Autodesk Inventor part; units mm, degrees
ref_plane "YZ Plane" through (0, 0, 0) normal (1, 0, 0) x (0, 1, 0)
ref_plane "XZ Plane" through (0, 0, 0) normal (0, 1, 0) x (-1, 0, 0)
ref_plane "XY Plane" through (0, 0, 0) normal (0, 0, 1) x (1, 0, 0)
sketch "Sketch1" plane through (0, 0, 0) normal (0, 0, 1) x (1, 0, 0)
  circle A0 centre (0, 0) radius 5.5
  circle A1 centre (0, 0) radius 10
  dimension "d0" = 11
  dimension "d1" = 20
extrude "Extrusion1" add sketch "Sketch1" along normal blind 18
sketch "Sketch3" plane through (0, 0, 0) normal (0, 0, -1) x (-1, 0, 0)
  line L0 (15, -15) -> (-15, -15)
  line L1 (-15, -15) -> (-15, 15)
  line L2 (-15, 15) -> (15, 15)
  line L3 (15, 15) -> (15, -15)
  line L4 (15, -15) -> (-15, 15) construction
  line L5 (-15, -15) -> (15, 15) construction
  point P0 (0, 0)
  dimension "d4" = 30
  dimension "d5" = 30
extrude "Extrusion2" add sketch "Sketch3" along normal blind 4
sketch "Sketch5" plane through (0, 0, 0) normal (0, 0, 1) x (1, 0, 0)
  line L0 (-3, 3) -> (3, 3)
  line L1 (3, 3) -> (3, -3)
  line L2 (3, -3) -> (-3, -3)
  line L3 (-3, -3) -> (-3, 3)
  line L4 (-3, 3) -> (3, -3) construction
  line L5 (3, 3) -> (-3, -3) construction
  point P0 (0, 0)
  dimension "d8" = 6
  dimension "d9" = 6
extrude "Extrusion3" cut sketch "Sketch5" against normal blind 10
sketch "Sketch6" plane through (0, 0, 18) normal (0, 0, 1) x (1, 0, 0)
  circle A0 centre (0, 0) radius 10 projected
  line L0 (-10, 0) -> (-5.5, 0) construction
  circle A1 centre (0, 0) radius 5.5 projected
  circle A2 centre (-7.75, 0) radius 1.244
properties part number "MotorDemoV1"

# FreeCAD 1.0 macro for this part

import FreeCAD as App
import Part
import Sketcher

V = App.Vector
Q = App.Units.Quantity


def add_polygon(sketch, points):
    """Adds a closed chain of lines whose ends are joined by coincident constraints."""
    first, n = sketch.GeometryCount, len(points)
    for a, b in zip(points, points[1:] + points[:1]):
        sketch.addGeometry(Part.LineSegment(App.Vector(*a, 0), App.Vector(*b, 0)), False)
    for i in range(n):
        sketch.addConstraint(Sketcher.Constraint("Coincident", first + i, 2, first + (i + 1) % n, 1))

doc = App.newDocument("Part")
params = doc.addObject("Spreadsheet::Sheet", "Params")
for row, (alias, value) in enumerate([
    ("sketch1_diameter", "20 mm"),
    ("sketch1_diameter2", "11 mm"),
    ("pad1_length", "18 mm"),
    ("sketch2_width", "30 mm"),
    ("pad2_length", "4 mm"),
    ("sketch3_width", "6 mm"),
    ("pocket1_length", "10 mm"),
], start=1):
    params.set(f"A{row}", alias)
    params.set(f"B{row}", "=" + value)
    params.setAlias(f"B{row}", alias)

body = doc.addObject("PartDesign::Body", "Body")

# Sketch on XY plane
sketch1 = body.newObject("Sketcher::SketchObject", "Sketch")
sketch1.AttachmentSupport = (doc.getObject("XY_Plane"), [""])
sketch1.MapMode = "FlatFace"
sketch1.addGeometry([
    Part.Circle(V(0, 0, 0), V(0, 0, 1), 10),
    Part.Circle(V(0, 0, 0), V(0, 0, 1), 6),
], False)
sketch1.addConstraint([
    Sketcher.Constraint("Coincident", 0, 3, -1, 1),
    Sketcher.Constraint("Coincident", 1, 3, -1, 1),
    Sketcher.Constraint("Diameter", 0, Q("20 mm")),
    Sketcher.Constraint("Diameter", 1, Q("11 mm")),
])
sketch1.setExpression("Constraints[2]", "Params.sketch1_diameter")
sketch1.setExpression("Constraints[3]", "Params.sketch1_diameter2")
pad1 = body.newObject("PartDesign::Pad", "Pad")
pad1.Profile = sketch1
pad1.setExpression("Length", "Params.pad1_length")

# Sketch on XY plane
sketch2 = body.newObject("Sketcher::SketchObject", "Sketch001")
sketch2.AttachmentSupport = (doc.getObject("XY_Plane"), [""])
sketch2.MapMode = "FlatFace"
add_polygon(sketch2, [(15, -15), (-15, -15), (-15, 15), (15, 15)])  # lines 0-3
sketch2.addConstraint([
    Sketcher.Constraint("Horizontal", 0),
    Sketcher.Constraint("Vertical", 1),
    Sketcher.Constraint("Horizontal", 2),
    Sketcher.Constraint("Vertical", 3),
    Sketcher.Constraint("Symmetric", 0, 2, 2, 2, -1, 1),
    Sketcher.Constraint("Equal", 2, 1),
    Sketcher.Constraint("DistanceX", 0, 2, 0, 1, Q("30 mm")),
])
sketch2.setExpression("Constraints[10]", "Params.sketch2_width")
pad2 = body.newObject("PartDesign::Pad", "Pad001")
pad2.Profile = sketch2
pad2.setExpression("Length", "Params.pad2_length")
pad2.Reversed = True

# Sketch on XY plane
sketch3 = body.newObject("Sketcher::SketchObject", "Sketch002")
sketch3.AttachmentSupport = (doc.getObject("XY_Plane"), [""])
sketch3.MapMode = "FlatFace"
add_polygon(sketch3, [(3, 3), (-3, 3), (-3, -3), (3, -3)])  # lines 0-3
sketch3.addConstraint([
    Sketcher.Constraint("Horizontal", 0),
    Sketcher.Constraint("Vertical", 1),
    Sketcher.Constraint("Horizontal", 2),
    Sketcher.Constraint("Vertical", 3),
    Sketcher.Constraint("Symmetric", 0, 2, 2, 2, -1, 1),
    Sketcher.Constraint("Equal", 2, 1),
    Sketcher.Constraint("DistanceX", 0, 2, 0, 1, Q("6 mm")),
])
sketch3.setExpression("Constraints[10]", "Params.sketch3_width")
pocket1 = body.newObject("PartDesign::Pocket", "Pocket")
pocket1.Profile = sketch3
pocket1.setExpression("Length", "Params.pocket1_length")

doc.recompute()
